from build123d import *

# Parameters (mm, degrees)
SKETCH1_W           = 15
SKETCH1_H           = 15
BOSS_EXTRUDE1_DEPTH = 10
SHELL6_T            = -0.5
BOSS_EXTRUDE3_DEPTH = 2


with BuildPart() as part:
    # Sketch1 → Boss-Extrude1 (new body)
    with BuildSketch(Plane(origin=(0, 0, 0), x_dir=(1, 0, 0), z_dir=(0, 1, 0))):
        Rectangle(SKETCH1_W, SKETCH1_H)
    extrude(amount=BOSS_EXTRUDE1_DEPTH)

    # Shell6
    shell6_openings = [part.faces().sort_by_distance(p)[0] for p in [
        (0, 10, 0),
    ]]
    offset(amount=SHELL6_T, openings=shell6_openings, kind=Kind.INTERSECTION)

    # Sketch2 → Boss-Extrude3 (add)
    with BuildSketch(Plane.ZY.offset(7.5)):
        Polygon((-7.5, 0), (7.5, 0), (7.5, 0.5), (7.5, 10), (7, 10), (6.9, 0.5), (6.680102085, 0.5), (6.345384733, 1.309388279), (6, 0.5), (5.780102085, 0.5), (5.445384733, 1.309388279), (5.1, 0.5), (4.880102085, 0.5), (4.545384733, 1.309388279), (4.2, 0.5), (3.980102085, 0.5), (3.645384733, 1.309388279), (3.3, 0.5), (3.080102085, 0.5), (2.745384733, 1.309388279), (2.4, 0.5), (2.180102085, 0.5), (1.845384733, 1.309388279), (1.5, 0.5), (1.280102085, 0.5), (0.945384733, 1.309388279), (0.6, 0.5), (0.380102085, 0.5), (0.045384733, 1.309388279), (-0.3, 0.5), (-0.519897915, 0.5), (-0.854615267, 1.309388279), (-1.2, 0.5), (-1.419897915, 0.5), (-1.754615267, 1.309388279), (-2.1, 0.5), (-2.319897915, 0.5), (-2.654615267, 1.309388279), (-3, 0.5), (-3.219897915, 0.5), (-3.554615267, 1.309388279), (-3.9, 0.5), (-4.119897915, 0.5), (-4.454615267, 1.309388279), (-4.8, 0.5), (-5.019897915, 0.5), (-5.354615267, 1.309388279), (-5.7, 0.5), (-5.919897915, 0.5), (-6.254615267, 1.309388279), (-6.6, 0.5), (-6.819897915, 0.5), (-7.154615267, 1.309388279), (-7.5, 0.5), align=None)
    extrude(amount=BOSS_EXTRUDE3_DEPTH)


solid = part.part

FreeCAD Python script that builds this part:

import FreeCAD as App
import Part
import Sketcher
Q = App.Units.Quantity


def faces_at(feature, points):
    """Names of the faces that lie closest to the given points."""
    faces = feature.Shape.Faces
    near = lambda p: min(range(len(faces)), key=lambda i: faces[i].distToShape(Part.Vertex(*p))[0])
    return sorted({f"Face{near(p) + 1}" for p in points})

doc = App.newDocument("Part")
body = doc.addObject("PartDesign::Body", "Body")

sketch1 = doc.addObject("Sketcher::SketchObject", "Sketch")
body.addObject(sketch1)
sketch1.AttachmentSupport = (doc.XZ_Plane, [""])
sketch1.MapMode = "FlatFace"
sketch1.addGeometry([
    Part.LineSegment(App.Vector(-7.5, -7.5, 0), App.Vector(-7.5, 7.5, 0)),
    Part.LineSegment(App.Vector(-7.5, 7.5, 0), App.Vector(7.5, 7.5, 0)),
    Part.LineSegment(App.Vector(7.5, 7.5, 0), App.Vector(7.5, -7.5, 0)),
    Part.LineSegment(App.Vector(7.5, -7.5, 0), App.Vector(-7.5, -7.5, 0)),
], False)
sketch1.addConstraint([
    Sketcher.Constraint("Coincident", 0, 2, 1, 1),
    Sketcher.Constraint("Coincident", 1, 2, 2, 1),
    Sketcher.Constraint("Coincident", 2, 2, 3, 1),
    Sketcher.Constraint("Coincident", 3, 2, 0, 1),
    Sketcher.Constraint("Vertical", 0),
    Sketcher.Constraint("Horizontal", 1),
    Sketcher.Constraint("Vertical", 2),
    Sketcher.Constraint("Horizontal", 3),
    Sketcher.Constraint("Symmetric", 0, 2, 2, 2, -1, 1),
    Sketcher.Constraint("Equal", 3, 0),
    Sketcher.Constraint("DistanceX", 1, 1, 1, 2, Q("15 mm")),
])
pad1 = doc.addObject("PartDesign::Pad", "Pad")
body.addObject(pad1)
pad1.Profile = sketch1
pad1.Length = 10
pad1.Reversed = True
doc.recompute()

thickness = doc.addObject("PartDesign::Thickness", "Thickness")
body.addObject(thickness)
thickness.Base = (pad1, faces_at(pad1, [(0, 10, 0)]))
thickness.Value = 0.5
thickness.Reversed = True
thickness.Join = "Intersection"

sketch2 = doc.addObject("Sketcher::SketchObject", "Sketch001")
body.addObject(sketch2)
sketch2.AttachmentSupport = (doc.YZ_Plane, [""])
sketch2.MapMode = "FlatFace"
sketch2.AttachmentOffset = App.Placement(App.Vector(0, 0, -7.5), App.Rotation())
sketch2.addGeometry([
    Part.LineSegment(App.Vector(0, -7.5, 0), App.Vector(0, 7.5, 0)),
    Part.LineSegment(App.Vector(0, 7.5, 0), App.Vector(10, 7.5, 0)),
    Part.LineSegment(App.Vector(10, 7.5, 0), App.Vector(10, 7, 0)),
    Part.LineSegment(App.Vector(10, 7, 0), App.Vector(0.5, 6.9, 0)),
    Part.LineSegment(App.Vector(0.5, 6.9, 0), App.Vector(0.5, 6.680102, 0)),
    Part.LineSegment(App.Vector(0.5, 6.680102, 0), App.Vector(1.309388, 6.345385, 0)),
    Part.LineSegment(App.Vector(1.309388, 6.345385, 0), App.Vector(0.5, 6, 0)),
    Part.LineSegment(App.Vector(0.5, 6, 0), App.Vector(0.5, 5.780102, 0)),
    Part.LineSegment(App.Vector(0.5, 5.780102, 0), App.Vector(1.309388, 5.445385, 0)),
    Part.LineSegment(App.Vector(1.309388, 5.445385, 0), App.Vector(0.5, 5.1, 0)),
    Part.LineSegment(App.Vector(0.5, 5.1, 0), App.Vector(0.5, 4.880102, 0)),
    Part.LineSegment(App.Vector(0.5, 4.880102, 0), App.Vector(1.309388, 4.545385, 0)),
    Part.LineSegment(App.Vector(1.309388, 4.545385, 0), App.Vector(0.5, 4.2, 0)),
    Part.LineSegment(App.Vector(0.5, 4.2, 0), App.Vector(0.5, 3.980102, 0)),
    Part.LineSegment(App.Vector(0.5, 3.980102, 0), App.Vector(1.309388, 3.645385, 0)),
    Part.LineSegment(App.Vector(1.309388, 3.645385, 0), App.Vector(0.5, 3.3, 0)),
    Part.LineSegment(App.Vector(0.5, 3.3, 0), App.Vector(0.5, 3.080102, 0)),
    Part.LineSegment(App.Vector(0.5, 3.080102, 0), App.Vector(1.309388, 2.745385, 0)),
    Part.LineSegment(App.Vector(1.309388, 2.745385, 0), App.Vector(0.5, 2.4, 0)),
    Part.LineSegment(App.Vector(0.5, 2.4, 0), App.Vector(0.5, 2.180102, 0)),
    Part.LineSegment(App.Vector(0.5, 2.180102, 0), App.Vector(1.309388, 1.845385, 0)),
    Part.LineSegment(App.Vector(1.309388, 1.845385, 0), App.Vector(0.5, 1.5, 0)),
    Part.LineSegment(App.Vector(0.5, 1.5, 0), App.Vector(0.5, 1.280102, 0)),
    Part.LineSegment(App.Vector(0.5, 1.280102, 0), App.Vector(1.309388, 0.945385, 0)),
    Part.LineSegment(App.Vector(1.309388, 0.945385, 0), App.Vector(0.5, 0.6, 0)),
    Part.LineSegment(App.Vector(0.5, 0.6, 0), App.Vector(0.5, 0.380102, 0)),
    Part.LineSegment(App.Vector(0.5, 0.380102, 0), App.Vector(1.309388, 0.045385, 0)),
    Part.LineSegment(App.Vector(1.309388, 0.045385, 0), App.Vector(0.5, -0.3, 0)),
    Part.LineSegment(App.Vector(0.5, -0.3, 0), App.Vector(0.5, -0.519898, 0)),
    Part.LineSegment(App.Vector(0.5, -0.519898, 0), App.Vector(1.309388, -0.854615, 0)),
    Part.LineSegment(App.Vector(1.309388, -0.854615, 0), App.Vector(0.5, -1.2, 0)),
    Part.LineSegment(App.Vector(0.5, -1.2, 0), App.Vector(0.5, -1.419898, 0)),
    Part.LineSegment(App.Vector(0.5, -1.419898, 0), App.Vector(1.309388, -1.754615, 0)),
    Part.LineSegment(App.Vector(1.309388, -1.754615, 0), App.Vector(0.5, -2.1, 0)),
    Part.LineSegment(App.Vector(0.5, -2.1, 0), App.Vector(0.5, -2.319898, 0)),
    Part.LineSegment(App.Vector(0.5, -2.319898, 0), App.Vector(1.309388, -2.654615, 0)),
    Part.LineSegment(App.Vector(1.309388, -2.654615, 0), App.Vector(0.5, -3, 0)),
    Part.LineSegment(App.Vector(0.5, -3, 0), App.Vector(0.5, -3.219898, 0)),
    Part.LineSegment(App.Vector(0.5, -3.219898, 0), App.Vector(1.309388, -3.554615, 0)),
    Part.LineSegment(App.Vector(1.309388, -3.554615, 0), App.Vector(0.5, -3.9, 0)),
    Part.LineSegment(App.Vector(0.5, -3.9, 0), App.Vector(0.5, -4.119898, 0)),
    Part.LineSegment(App.Vector(0.5, -4.119898, 0), App.Vector(1.309388, -4.454615, 0)),
    Part.LineSegment(App.Vector(1.309388, -4.454615, 0), App.Vector(0.5, -4.8, 0)),
    Part.LineSegment(App.Vector(0.5, -4.8, 0), App.Vector(0.5, -5.019898, 0)),
    Part.LineSegment(App.Vector(0.5, -5.019898, 0), App.Vector(1.309388, -5.354615, 0)),
    Part.LineSegment(App.Vector(1.309388, -5.354615, 0), App.Vector(0.5, -5.7, 0)),
    Part.LineSegment(App.Vector(0.5, -5.7, 0), App.Vector(0.5, -5.919898, 0)),
    Part.LineSegment(App.Vector(0.5, -5.919898, 0), App.Vector(1.309388, -6.254615, 0)),
    Part.LineSegment(App.Vector(1.309388, -6.254615, 0), App.Vector(0.5, -6.6, 0)),
    Part.LineSegment(App.Vector(0.5, -6.6, 0), App.Vector(0.5, -6.819898, 0)),
    Part.LineSegment(App.Vector(0.5, -6.819898, 0), App.Vector(1.309388, -7.154615, 0)),
    Part.LineSegment(App.Vector(1.309388, -7.154615, 0), App.Vector(0.5, -7.5, 0)),
    Part.LineSegment(App.Vector(0.5, -7.5, 0), App.Vector(0, -7.5, 0)),
], False)
sketch2.addConstraint([
    Sketcher.Constraint("Coincident", 0, 2, 1, 1),
    Sketcher.Constraint("Coincident", 1, 2, 2, 1),
    Sketcher.Constraint("Coincident", 2, 2, 3, 1),
    Sketcher.Constraint("Coincident", 3, 2, 4, 1),
    Sketcher.Constraint("Coincident", 4, 2, 5, 1),
    Sketcher.Constraint("Coincident", 5, 2, 6, 1),
    Sketcher.Constraint("Coincident", 6, 2, 7, 1),
    Sketcher.Constraint("Coincident", 7, 2, 8, 1),
    Sketcher.Constraint("Coincident", 8, 2, 9, 1),
    Sketcher.Constraint("Coincident", 9, 2, 10, 1),
    Sketcher.Constraint("Coincident", 10, 2, 11, 1),
    Sketcher.Constraint("Coincident", 11, 2, 12, 1),
    Sketcher.Constraint("Coincident", 12, 2, 13, 1),
    Sketcher.Constraint("Coincident", 13, 2, 14, 1),
    Sketcher.Constraint("Coincident", 14, 2, 15, 1),
    Sketcher.Constraint("Coincident", 15, 2, 16, 1),
    Sketcher.Constraint("Coincident", 16, 2, 17, 1),
    Sketcher.Constraint("Coincident", 17, 2, 18, 1),
    Sketcher.Constraint("Coincident", 18, 2, 19, 1),
    Sketcher.Constraint("Coincident", 19, 2, 20, 1),
    Sketcher.Constraint("Coincident", 20, 2, 21, 1),
    Sketcher.Constraint("Coincident", 21, 2, 22, 1),
    Sketcher.Constraint("Coincident", 22, 2, 23, 1),
    Sketcher.Constraint("Coincident", 23, 2, 24, 1),
    Sketcher.Constraint("Coincident", 24, 2, 25, 1),
    Sketcher.Constraint("Coincident", 25, 2, 26, 1),
    Sketcher.Constraint("Coincident", 26, 2, 27, 1),
    Sketcher.Constraint("Coincident", 27, 2, 28, 1),
    Sketcher.Constraint("Coincident", 28, 2, 29, 1),
    Sketcher.Constraint("Coincident", 29, 2, 30, 1),
    Sketcher.Constraint("Coincident", 30, 2, 31, 1),
    Sketcher.Constraint("Coincident", 31, 2, 32, 1),
    Sketcher.Constraint("Coincident", 32, 2, 33, 1),
    Sketcher.Constraint("Coincident", 33, 2, 34, 1),
    Sketcher.Constraint("Coincident", 34, 2, 35, 1),
    Sketcher.Constraint("Coincident", 35, 2, 36, 1),
    Sketcher.Constraint("Coincident", 36, 2, 37, 1),
    Sketcher.Constraint("Coincident", 37, 2, 38, 1),
    Sketcher.Constraint("Coincident", 38, 2, 39, 1),
    Sketcher.Constraint("Coincident", 39, 2, 40, 1),
    Sketcher.Constraint("Coincident", 40, 2, 41, 1),
    Sketcher.Constraint("Coincident", 41, 2, 42, 1),
    Sketcher.Constraint("Coincident", 42, 2, 43, 1),
    Sketcher.Constraint("Coincident", 43, 2, 44, 1),
    Sketcher.Constraint("Coincident", 44, 2, 45, 1),
    Sketcher.Constraint("Coincident", 45, 2, 46, 1),
    Sketcher.Constraint("Coincident", 46, 2, 47, 1),
    Sketcher.Constraint("Coincident", 47, 2, 48, 1),
    Sketcher.Constraint("Coincident", 48, 2, 49, 1),
    Sketcher.Constraint("Coincident", 49, 2, 50, 1),
    Sketcher.Constraint("Coincident", 50, 2, 51, 1),
    Sketcher.Constraint("Coincident", 51, 2, 52, 1),
    Sketcher.Constraint("Coincident", 52, 2, 0, 1),
    Sketcher.Constraint("Vertical", 0),
    Sketcher.Constraint("Horizontal", 1),
    Sketcher.Constraint("Vertical", 2),
    Sketcher.Constraint("Vertical", 4),
    Sketcher.Constraint("Vertical", 7),
    Sketcher.Constraint("Vertical", 10),
    Sketcher.Constraint("Vertical", 13),
    Sketcher.Constraint("Vertical", 16),
    Sketcher.Constraint("Vertical", 19),
    Sketcher.Constraint("Vertical", 22),
    Sketcher.Constraint("Vertical", 25),
    Sketcher.Constraint("Vertical", 28),
    Sketcher.Constraint("Vertical", 31),
    Sketcher.Constraint("Vertical", 34),
    Sketcher.Constraint("Vertical", 37),
    Sketcher.Constraint("Vertical", 40),
    Sketcher.Constraint("Vertical", 43),
    Sketcher.Constraint("Vertical", 46),
    Sketcher.Constraint("Vertical", 49),
    Sketcher.Constraint("Horizontal", 52),
    Sketcher.Constraint("Symmetric", 0, 2, 52, 2, -1, 1),
    Sketcher.Constraint("Parallel", 5, 8),
    Sketcher.Constraint("Parallel", 6, 9),
    Sketcher.Constraint("Parallel", 8, 11),
    Sketcher.Constraint("Parallel", 9, 12),
    Sketcher.Constraint("Parallel", 11, 14),
    Sketcher.Constraint("Parallel", 12, 15),
    Sketcher.Constraint("Parallel", 14, 17),
    Sketcher.Constraint("Parallel", 15, 18),
    Sketcher.Constraint("Parallel", 17, 20),
    Sketcher.Constraint("Parallel", 18, 21),
    Sketcher.Constraint("Parallel", 20, 23),
    Sketcher.Constraint("Parallel", 21, 24),
    Sketcher.Constraint("Parallel", 23, 26),
    Sketcher.Constraint("Parallel", 24, 27),
    Sketcher.Constraint("Parallel", 26, 29),
    Sketcher.Constraint("Parallel", 27, 30),
    Sketcher.Constraint("Parallel", 29, 32),
    Sketcher.Constraint("Parallel", 30, 33),
    Sketcher.Constraint("Parallel", 32, 35),
    Sketcher.Constraint("Parallel", 33, 36),
    Sketcher.Constraint("Parallel", 35, 38),
    Sketcher.Constraint("Parallel", 36, 39),
    Sketcher.Constraint("Parallel", 38, 41),
    Sketcher.Constraint("Parallel", 39, 42),
    Sketcher.Constraint("Parallel", 41, 44),
    Sketcher.Constraint("Parallel", 42, 45),
    Sketcher.Constraint("Parallel", 44, 47),
    Sketcher.Constraint("Parallel", 45, 48),
    Sketcher.Constraint("Parallel", 47, 50),
    Sketcher.Constraint("Parallel", 48, 51),
    Sketcher.Constraint("Vertical", 4, 2, 6, 2),
    Sketcher.Constraint("Vertical", 5, 2, 8, 2),
    Sketcher.Constraint("Vertical", 7, 2, 9, 2),
    Sketcher.Constraint("Vertical", 8, 2, 11, 2),
    Sketcher.Constraint("Vertical", 10, 2, 12, 2),
    Sketcher.Constraint("Vertical", 11, 2, 14, 2),
    Sketcher.Constraint("Vertical", 13, 2, 15, 2),
    Sketcher.Constraint("Vertical", 14, 2, 17, 2),
    Sketcher.Constraint("Vertical", 16, 2, 18, 2),
    Sketcher.Constraint("Vertical", 17, 2, 20, 2),
    Sketcher.Constraint("Vertical", 19, 2, 21, 2),
    Sketcher.Constraint("Vertical", 20, 2, 23, 2),
    Sketcher.Constraint("Vertical", 22, 2, 24, 2),
    Sketcher.Constraint("Vertical", 23, 2, 26, 2),
    Sketcher.Constraint("Vertical", 25, 2, 27, 2),
    Sketcher.Constraint("Vertical", 26, 2, 29, 2),
    Sketcher.Constraint("Vertical", 28, 2, 30, 2),
    Sketcher.Constraint("Vertical", 29, 2, 32, 2),
    Sketcher.Constraint("Vertical", 31, 2, 33, 2),
    Sketcher.Constraint("Vertical", 32, 2, 35, 2),
    Sketcher.Constraint("Vertical", 34, 2, 36, 2),
    Sketcher.Constraint("Vertical", 35, 2, 38, 2),
    Sketcher.Constraint("Vertical", 37, 2, 39, 2),
    Sketcher.Constraint("Vertical", 38, 2, 41, 2),
    Sketcher.Constraint("Vertical", 40, 2, 42, 2),
    Sketcher.Constraint("Vertical", 41, 2, 44, 2),
    Sketcher.Constraint("Vertical", 43, 2, 45, 2),
    Sketcher.Constraint("Vertical", 44, 2, 47, 2),
    Sketcher.Constraint("Vertical", 46, 2, 48, 2),
    Sketcher.Constraint("Vertical", 47, 2, 50, 2),
    Sketcher.Constraint("Vertical", 49, 2, 51, 2),
    Sketcher.Constraint("Equal", 52, 2),
    Sketcher.Constraint("Equal", 4, 7),
    Sketcher.Constraint("Equal", 7, 10),
    Sketcher.Constraint("Equal", 10, 13),
    Sketcher.Constraint("Equal", 13, 16),
    Sketcher.Constraint("Equal", 16, 19),
    Sketcher.Constraint("Equal", 19, 22),
    Sketcher.Constraint("Equal", 22, 25),
    Sketcher.Constraint("Equal", 25, 28),
    Sketcher.Constraint("Equal", 28, 31),
    Sketcher.Constraint("Equal", 31, 34),
    Sketcher.Constraint("Equal", 34, 37),
    Sketcher.Constraint("Equal", 37, 40),
    Sketcher.Constraint("Equal", 40, 43),
    Sketcher.Constraint("Equal", 43, 46),
    Sketcher.Constraint("Equal", 46, 49),
    Sketcher.Constraint("DistanceX", 1, 1, 1, 2, Q("10 mm")),
    Sketcher.Constraint("DistanceY", 0, 1, 0, 2, Q("15 mm")),
    Sketcher.Constraint("DistanceX", 52, 2, 52, 1, Q("0.5 mm")),
    Sketcher.Constraint("DistanceY", -1, 1, 6, 2, Q("6 mm")),
    Sketcher.Constraint("Distance", 6, Q("0.88 mm")),
    Sketcher.Constraint("Distance", 5, Q("0.875868 mm")),
    Sketcher.Constraint("DistanceY", 4, 2, 4, 1, Q("0.219898 mm")),
])
pad2 = doc.addObject("PartDesign::Pad", "Pad001")
body.addObject(pad2)
pad2.Profile = sketch2
pad2.Length = 2
pad2.Reversed = True

doc.recompute()
